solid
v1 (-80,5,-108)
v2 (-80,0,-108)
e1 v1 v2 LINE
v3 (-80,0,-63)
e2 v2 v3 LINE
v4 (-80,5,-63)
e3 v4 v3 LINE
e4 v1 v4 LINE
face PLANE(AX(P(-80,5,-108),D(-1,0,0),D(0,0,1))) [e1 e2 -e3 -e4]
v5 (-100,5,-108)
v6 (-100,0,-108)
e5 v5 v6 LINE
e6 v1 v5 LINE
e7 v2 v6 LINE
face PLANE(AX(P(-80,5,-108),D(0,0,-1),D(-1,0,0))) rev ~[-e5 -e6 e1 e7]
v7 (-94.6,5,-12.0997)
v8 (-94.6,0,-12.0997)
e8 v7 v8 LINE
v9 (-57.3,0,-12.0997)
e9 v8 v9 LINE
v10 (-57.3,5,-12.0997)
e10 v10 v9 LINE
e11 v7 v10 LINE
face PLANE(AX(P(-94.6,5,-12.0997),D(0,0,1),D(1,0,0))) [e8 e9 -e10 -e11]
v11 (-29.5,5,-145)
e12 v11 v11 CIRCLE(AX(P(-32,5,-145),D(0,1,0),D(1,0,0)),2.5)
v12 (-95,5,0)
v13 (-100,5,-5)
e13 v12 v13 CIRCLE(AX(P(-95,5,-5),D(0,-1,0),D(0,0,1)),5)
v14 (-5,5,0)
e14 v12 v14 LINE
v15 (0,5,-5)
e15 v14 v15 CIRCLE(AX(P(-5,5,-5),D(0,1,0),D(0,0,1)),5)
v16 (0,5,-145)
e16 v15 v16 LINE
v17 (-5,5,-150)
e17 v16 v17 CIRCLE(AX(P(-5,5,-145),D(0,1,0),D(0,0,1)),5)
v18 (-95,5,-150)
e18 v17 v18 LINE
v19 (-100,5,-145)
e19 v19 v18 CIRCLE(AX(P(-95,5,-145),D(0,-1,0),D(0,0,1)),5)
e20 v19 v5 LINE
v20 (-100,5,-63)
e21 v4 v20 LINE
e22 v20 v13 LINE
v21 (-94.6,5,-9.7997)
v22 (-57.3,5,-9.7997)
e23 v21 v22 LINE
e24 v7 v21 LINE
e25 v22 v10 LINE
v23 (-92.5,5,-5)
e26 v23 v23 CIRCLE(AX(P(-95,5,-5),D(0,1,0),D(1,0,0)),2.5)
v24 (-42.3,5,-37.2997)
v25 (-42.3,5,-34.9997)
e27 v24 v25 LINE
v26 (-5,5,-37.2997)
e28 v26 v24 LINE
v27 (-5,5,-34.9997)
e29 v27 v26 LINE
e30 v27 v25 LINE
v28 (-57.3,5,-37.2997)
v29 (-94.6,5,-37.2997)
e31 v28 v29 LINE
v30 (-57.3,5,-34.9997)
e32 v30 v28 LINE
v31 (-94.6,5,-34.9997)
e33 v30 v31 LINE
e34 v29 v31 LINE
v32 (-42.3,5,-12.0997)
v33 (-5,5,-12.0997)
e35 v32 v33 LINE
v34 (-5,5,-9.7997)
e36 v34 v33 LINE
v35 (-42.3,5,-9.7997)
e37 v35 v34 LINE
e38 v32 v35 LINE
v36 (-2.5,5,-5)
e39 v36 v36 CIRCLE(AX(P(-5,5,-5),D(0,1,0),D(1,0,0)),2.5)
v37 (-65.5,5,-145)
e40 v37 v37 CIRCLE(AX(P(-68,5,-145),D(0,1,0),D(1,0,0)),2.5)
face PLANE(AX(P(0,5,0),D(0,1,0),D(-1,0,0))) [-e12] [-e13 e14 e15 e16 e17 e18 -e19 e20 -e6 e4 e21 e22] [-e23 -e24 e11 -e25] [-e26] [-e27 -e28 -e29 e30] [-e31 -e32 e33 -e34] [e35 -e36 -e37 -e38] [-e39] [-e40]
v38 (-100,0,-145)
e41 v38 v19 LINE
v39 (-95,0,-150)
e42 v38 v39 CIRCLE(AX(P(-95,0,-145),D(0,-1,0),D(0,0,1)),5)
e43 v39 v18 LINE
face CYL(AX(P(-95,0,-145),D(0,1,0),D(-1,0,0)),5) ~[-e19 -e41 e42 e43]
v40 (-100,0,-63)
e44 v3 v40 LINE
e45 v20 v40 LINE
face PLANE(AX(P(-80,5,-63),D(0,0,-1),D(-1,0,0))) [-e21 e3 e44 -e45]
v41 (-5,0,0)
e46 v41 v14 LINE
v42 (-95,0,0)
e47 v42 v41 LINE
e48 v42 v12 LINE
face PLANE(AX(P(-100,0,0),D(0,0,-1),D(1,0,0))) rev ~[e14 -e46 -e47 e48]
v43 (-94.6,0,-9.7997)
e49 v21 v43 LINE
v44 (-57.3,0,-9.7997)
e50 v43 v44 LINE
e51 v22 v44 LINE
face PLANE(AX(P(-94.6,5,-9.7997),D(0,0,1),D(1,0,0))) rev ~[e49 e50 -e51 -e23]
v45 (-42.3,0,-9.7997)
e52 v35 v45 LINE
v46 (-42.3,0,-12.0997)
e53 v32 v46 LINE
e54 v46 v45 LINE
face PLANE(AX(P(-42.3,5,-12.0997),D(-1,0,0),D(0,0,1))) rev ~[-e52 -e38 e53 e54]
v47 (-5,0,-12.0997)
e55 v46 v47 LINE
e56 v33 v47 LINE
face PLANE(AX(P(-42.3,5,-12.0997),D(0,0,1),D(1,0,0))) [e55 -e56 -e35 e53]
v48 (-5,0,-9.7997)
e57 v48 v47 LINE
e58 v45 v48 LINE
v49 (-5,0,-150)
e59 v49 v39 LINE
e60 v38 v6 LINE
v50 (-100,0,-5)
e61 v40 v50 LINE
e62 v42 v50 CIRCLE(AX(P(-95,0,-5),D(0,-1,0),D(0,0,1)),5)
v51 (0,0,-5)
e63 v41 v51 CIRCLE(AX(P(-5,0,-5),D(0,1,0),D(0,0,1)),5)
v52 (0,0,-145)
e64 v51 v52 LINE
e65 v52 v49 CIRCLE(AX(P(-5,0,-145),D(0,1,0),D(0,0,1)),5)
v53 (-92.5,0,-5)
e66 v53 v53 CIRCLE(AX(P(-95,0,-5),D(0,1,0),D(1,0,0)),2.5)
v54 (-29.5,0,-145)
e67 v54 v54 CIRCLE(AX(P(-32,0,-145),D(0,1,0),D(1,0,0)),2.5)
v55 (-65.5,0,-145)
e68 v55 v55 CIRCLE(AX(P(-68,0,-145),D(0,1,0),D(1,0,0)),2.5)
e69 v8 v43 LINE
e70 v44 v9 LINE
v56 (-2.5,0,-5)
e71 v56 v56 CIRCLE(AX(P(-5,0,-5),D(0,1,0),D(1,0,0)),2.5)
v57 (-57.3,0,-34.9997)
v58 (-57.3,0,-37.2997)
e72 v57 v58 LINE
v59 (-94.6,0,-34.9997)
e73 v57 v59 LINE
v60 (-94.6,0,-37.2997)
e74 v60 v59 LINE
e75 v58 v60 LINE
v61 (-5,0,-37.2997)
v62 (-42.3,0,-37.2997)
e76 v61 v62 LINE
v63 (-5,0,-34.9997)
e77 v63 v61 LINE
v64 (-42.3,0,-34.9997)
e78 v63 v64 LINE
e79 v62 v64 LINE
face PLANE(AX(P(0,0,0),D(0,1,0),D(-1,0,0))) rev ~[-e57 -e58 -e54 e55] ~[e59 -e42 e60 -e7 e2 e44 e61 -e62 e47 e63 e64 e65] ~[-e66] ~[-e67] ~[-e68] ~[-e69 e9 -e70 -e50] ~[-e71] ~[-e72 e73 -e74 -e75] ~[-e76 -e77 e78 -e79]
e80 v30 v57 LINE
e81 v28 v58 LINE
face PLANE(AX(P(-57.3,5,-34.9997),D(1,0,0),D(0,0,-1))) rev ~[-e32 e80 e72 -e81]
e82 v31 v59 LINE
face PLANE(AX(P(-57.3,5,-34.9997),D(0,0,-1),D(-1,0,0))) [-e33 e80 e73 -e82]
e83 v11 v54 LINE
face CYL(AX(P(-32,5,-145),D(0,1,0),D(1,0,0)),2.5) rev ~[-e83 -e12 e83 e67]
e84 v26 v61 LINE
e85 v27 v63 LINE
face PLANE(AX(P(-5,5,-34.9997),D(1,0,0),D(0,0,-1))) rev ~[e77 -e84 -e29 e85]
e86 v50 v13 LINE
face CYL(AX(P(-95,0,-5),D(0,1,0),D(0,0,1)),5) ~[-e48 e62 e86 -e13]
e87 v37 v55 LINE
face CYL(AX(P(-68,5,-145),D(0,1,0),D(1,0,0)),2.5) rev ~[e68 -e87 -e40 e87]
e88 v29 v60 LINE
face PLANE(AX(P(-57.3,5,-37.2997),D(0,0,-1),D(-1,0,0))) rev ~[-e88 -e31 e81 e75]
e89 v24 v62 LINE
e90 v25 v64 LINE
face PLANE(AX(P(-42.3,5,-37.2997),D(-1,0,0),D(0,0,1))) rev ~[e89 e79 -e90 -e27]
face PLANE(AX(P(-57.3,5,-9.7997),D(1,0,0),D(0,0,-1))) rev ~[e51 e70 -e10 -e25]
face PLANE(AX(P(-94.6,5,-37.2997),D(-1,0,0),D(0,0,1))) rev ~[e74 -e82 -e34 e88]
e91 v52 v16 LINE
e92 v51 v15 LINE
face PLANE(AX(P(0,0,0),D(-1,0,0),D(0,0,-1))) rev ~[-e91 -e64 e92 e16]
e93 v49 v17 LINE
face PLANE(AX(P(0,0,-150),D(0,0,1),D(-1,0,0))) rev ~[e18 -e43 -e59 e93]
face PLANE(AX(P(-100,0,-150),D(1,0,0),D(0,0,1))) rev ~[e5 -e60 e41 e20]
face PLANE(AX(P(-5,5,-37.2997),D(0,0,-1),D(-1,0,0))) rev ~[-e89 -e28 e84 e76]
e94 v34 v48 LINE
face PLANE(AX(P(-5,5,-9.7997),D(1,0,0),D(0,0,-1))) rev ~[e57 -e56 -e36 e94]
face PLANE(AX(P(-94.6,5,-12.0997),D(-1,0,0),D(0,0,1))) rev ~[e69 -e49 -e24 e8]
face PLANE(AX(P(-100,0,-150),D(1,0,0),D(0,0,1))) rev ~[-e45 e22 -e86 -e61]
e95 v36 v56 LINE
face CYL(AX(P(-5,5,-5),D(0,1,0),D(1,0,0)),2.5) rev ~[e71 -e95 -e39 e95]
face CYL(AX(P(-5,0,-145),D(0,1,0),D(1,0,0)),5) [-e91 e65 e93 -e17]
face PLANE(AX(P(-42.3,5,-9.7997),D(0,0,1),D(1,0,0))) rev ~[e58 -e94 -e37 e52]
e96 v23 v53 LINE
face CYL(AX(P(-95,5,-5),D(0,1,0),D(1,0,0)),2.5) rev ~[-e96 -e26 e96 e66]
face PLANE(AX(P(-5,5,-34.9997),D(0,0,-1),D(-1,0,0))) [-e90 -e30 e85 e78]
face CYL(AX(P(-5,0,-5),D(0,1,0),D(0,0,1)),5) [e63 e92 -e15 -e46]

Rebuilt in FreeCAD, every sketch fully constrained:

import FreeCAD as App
import Part
import Sketcher
from FreeCAD import Vector


def edges_at(feature, points):
    """Names of the edges that pass closest to the given points."""
    edges = feature.Shape.Edges
    near = lambda p: min(range(len(edges)), key=lambda i: edges[i].distToShape(Part.Vertex(*p))[0])
    return sorted({f"Edge{near(p) + 1}" for p in points})

doc = App.newDocument("Part")
body = doc.addObject("PartDesign::Body", "Body")

# Sketch on XZ plane
sketch1 = doc.addObject("Sketcher::SketchObject", "Sketch")
body.addObject(sketch1)
sketch1.AttachmentSupport = (doc.XZ_Plane, [""])
sketch1.MapMode = "FlatFace"
sketch1.addGeometry(Part.LineSegment(Vector(-100, 0, 0), Vector(0, 0, 0)), False)
sketch1.addGeometry(Part.LineSegment(Vector(0, 0, 0), Vector(0, -150, 0)), False)
sketch1.addGeometry(Part.LineSegment(Vector(0, -150, 0), Vector(-100, -150, 0)), False)
sketch1.addGeometry(Part.LineSegment(Vector(-100, -150, 0), Vector(-100, 0, 0)), False)
sketch1.addConstraint(Sketcher.Constraint("Coincident", 0, 2, 1, 1))
sketch1.addConstraint(Sketcher.Constraint("Coincident", 1, 2, 2, 1))
sketch1.addConstraint(Sketcher.Constraint("Coincident", 2, 2, 3, 1))
sketch1.addConstraint(Sketcher.Constraint("Coincident", 3, 2, 0, 1))
sketch1.addConstraint(Sketcher.Constraint("Horizontal", 0))
sketch1.addConstraint(Sketcher.Constraint("Vertical", 1))
sketch1.addConstraint(Sketcher.Constraint("Horizontal", 2))
sketch1.addConstraint(Sketcher.Constraint("Vertical", 3))
sketch1.addConstraint(Sketcher.Constraint("Coincident", 0, 2, -1, 1))
sketch1.addConstraint(Sketcher.Constraint("DistanceX", 0, 1, 0, 2, 100.0))
sketch1.addConstraint(Sketcher.Constraint("DistanceY", 1, 2, 1, 1, 150.0))
pad1 = doc.addObject("PartDesign::Pad", "Pad")
body.addObject(pad1)
pad1.Profile = sketch1
pad1.Length = 5
pad1.Reversed = True
doc.recompute()

fillet = doc.addObject("PartDesign::Fillet", "Fillet")
body.addObject(fillet)
fillet.Base = (pad1, edges_at(pad1, [(0, 2.5, 0)]))
fillet.Radius = 5
doc.recompute()

fillet2 = doc.addObject("PartDesign::Fillet", "Fillet001")
body.addObject(fillet2)
fillet2.Base = (fillet, edges_at(fillet, [(-100, 2.5, 0)]))
fillet2.Radius = 5
doc.recompute()

fillet3 = doc.addObject("PartDesign::Fillet", "Fillet002")
body.addObject(fillet3)
fillet3.Base = (fillet2, edges_at(fillet2, [(-100, 2.5, -150), (0, 2.5, -150)]))
fillet3.Radius = 5

# Sketch on XZ plane
sketch2 = doc.addObject("Sketcher::SketchObject", "Sketch001")
body.addObject(sketch2)
sketch2.AttachmentSupport = (doc.XZ_Plane, [""])
sketch2.MapMode = "FlatFace"
sketch2.AttachmentOffset = App.Placement(Vector(0, 0, -5), App.Rotation())
sketch2.addGeometry(Part.LineSegment(Vector(-80, -63, 0), Vector(-80, -108, 0)), False)
sketch2.addGeometry(Part.LineSegment(Vector(-80, -108, 0), Vector(-100, -108, 0)), False)
sketch2.addGeometry(Part.LineSegment(Vector(-100, -108, 0), Vector(-100, -63, 0)), False)
sketch2.addGeometry(Part.LineSegment(Vector(-100, -63, 0), Vector(-80, -63, 0)), False)
sketch2.addConstraint(Sketcher.Constraint("Coincident", 0, 2, 1, 1))
sketch2.addConstraint(Sketcher.Constraint("Coincident", 1, 2, 2, 1))
sketch2.addConstraint(Sketcher.Constraint("Coincident", 2, 2, 3, 1))
sketch2.addConstraint(Sketcher.Constraint("Coincident", 3, 2, 0, 1))
sketch2.addConstraint(Sketcher.Constraint("Vertical", 0))
sketch2.addConstraint(Sketcher.Constraint("Horizontal", 1))
sketch2.addConstraint(Sketcher.Constraint("Vertical", 2))
sketch2.addConstraint(Sketcher.Constraint("Horizontal", 3))
sketch2.addConstraint(Sketcher.Constraint("DistanceY", 0, 2, 0, 1, 45.0))
sketch2.addConstraint(Sketcher.Constraint("DistanceX", 1, 2, 1, 1, 20.0))
sketch2.addConstraint(Sketcher.Constraint("DistanceX", 0, 2, -1, 1, 80.0))
sketch2.addConstraint(Sketcher.Constraint("DistanceY", 0, 2, -1, 1, 108.0))
pocket1 = doc.addObject("PartDesign::Pocket", "Pocket")
body.addObject(pocket1)
pocket1.Profile = sketch2
pocket1.Type = "ThroughAll"
pocket1.Reversed = True

# Sketch on XZ plane
sketch3 = doc.addObject("Sketcher::SketchObject", "Sketch002")
body.addObject(sketch3)
sketch3.AttachmentSupport = (doc.XZ_Plane, [""])
sketch3.MapMode = "FlatFace"
sketch3.AttachmentOffset = App.Placement(Vector(0, 0, -5), App.Rotation())
sketch3.addGeometry(Part.Circle(Vector(-5, -5, 0), Vector(0, 0, 1), 2.5), False)
sketch3.addGeometry(Part.Circle(Vector(-95, -5, 0), Vector(0, 0, 1), 2.5), False)
sketch3.addGeometry(Part.Circle(Vector(-68, -145, 0), Vector(0, 0, 1), 2.5), False)
sketch3.addGeometry(Part.Circle(Vector(-32, -145, 0), Vector(0, 0, 1), 2.5), False)
sketch3.addConstraint(Sketcher.Constraint("Equal", 0, 1))
sketch3.addConstraint(Sketcher.Constraint("Equal", 1, 2))
sketch3.addConstraint(Sketcher.Constraint("Equal", 2, 3))
sketch3.addConstraint(Sketcher.Constraint("Horizontal", 0, 3, 1, 3))
sketch3.addConstraint(Sketcher.Constraint("Horizontal", 2, 3, 3, 3))
sketch3.addConstraint(Sketcher.Constraint("Diameter", 0, 5.0))
sketch3.addConstraint(Sketcher.Constraint("DistanceX", 0, 3, -1, 1, 5.0))
sketch3.addConstraint(Sketcher.Constraint("DistanceY", 0, 3, -1, 1, 5.0))
sketch3.addConstraint(Sketcher.Constraint("DistanceX", 1, 3, -1, 1, 95.0))
sketch3.addConstraint(Sketcher.Constraint("DistanceX", 2, 3, -1, 1, 68.0))
sketch3.addConstraint(Sketcher.Constraint("DistanceY", 2, 3, -1, 1, 145.0))
sketch3.addConstraint(Sketcher.Constraint("DistanceX", 3, 3, -1, 1, 32.0))
pocket2 = doc.addObject("PartDesign::Pocket", "Pocket001")
body.addObject(pocket2)
pocket2.Profile = sketch3
pocket2.Type = "ThroughAll"
pocket2.Reversed = True

# Sketch on XZ plane
sketch4 = doc.addObject("Sketcher::SketchObject", "Sketch003")
body.addObject(sketch4)
sketch4.AttachmentSupport = (doc.XZ_Plane, [""])
sketch4.MapMode = "FlatFace"
sketch4.AttachmentOffset = App.Placement(Vector(0, 0, -5), App.Rotation())
sketch4.addGeometry(Part.LineSegment(Vector(-42.3, -35, 0), Vector(-5, -35, 0)), False)
sketch4.addGeometry(Part.LineSegment(Vector(-5, -35, 0), Vector(-5, -37.3, 0)), False)
sketch4.addGeometry(Part.LineSegment(Vector(-5, -37.3, 0), Vector(-42.3, -37.3, 0)), False)
sketch4.addGeometry(Part.LineSegment(Vector(-42.3, -37.3, 0), Vector(-42.3, -35, 0)), False)
sketch4.addGeometry(Part.LineSegment(Vector(-5, -12.1, 0), Vector(-42.3, -12.1, 0)), False)
sketch4.addGeometry(Part.LineSegment(Vector(-42.3, -12.1, 0), Vector(-42.3, -9.8, 0)), False)
sketch4.addGeometry(Part.LineSegment(Vector(-42.3, -9.8, 0), Vector(-5, -9.8, 0)), False)
sketch4.addGeometry(Part.LineSegment(Vector(-5, -9.8, 0), Vector(-5, -12.1, 0)), False)
sketch4.addGeometry(Part.LineSegment(Vector(-94.6, -35, 0), Vector(-57.3, -35, 0)), False)
sketch4.addGeometry(Part.LineSegment(Vector(-57.3, -35, 0), Vector(-57.3, -37.3, 0)), False)
sketch4.addGeometry(Part.LineSegment(Vector(-57.3, -37.3, 0), Vector(-94.6, -37.3, 0)), False)
sketch4.addGeometry(Part.LineSegment(Vector(-94.6, -37.3, 0), Vector(-94.6, -35, 0)), False)
sketch4.addGeometry(Part.LineSegment(Vector(-57.3, -12.1, 0), Vector(-94.6, -12.1, 0)), False)
sketch4.addGeometry(Part.LineSegment(Vector(-94.6, -12.1, 0), Vector(-94.6, -9.8, 0)), False)
sketch4.addGeometry(Part.LineSegment(Vector(-94.6, -9.8, 0), Vector(-57.3, -9.8, 0)), False)
sketch4.addGeometry(Part.LineSegment(Vector(-57.3, -9.8, 0), Vector(-57.3, -12.1, 0)), False)
sketch4.addConstraint(Sketcher.Constraint("Coincident", 0, 2, 1, 1))
sketch4.addConstraint(Sketcher.Constraint("Coincident", 1, 2, 2, 1))
sketch4.addConstraint(Sketcher.Constraint("Coincident", 2, 2, 3, 1))
sketch4.addConstraint(Sketcher.Constraint("Coincident", 3, 2, 0, 1))
sketch4.addConstraint(Sketcher.Constraint("Coincident", 4, 2, 5, 1))
sketch4.addConstraint(Sketcher.Constraint("Coincident", 5, 2, 6, 1))
sketch4.addConstraint(Sketcher.Constraint("Coincident", 6, 2, 7, 1))
sketch4.addConstraint(Sketcher.Constraint("Coincident", 7, 2, 4, 1))
sketch4.addConstraint(Sketcher.Constraint("Coincident", 8, 2, 9, 1))
sketch4.addConstraint(Sketcher.Constraint("Coincident", 9, 2, 10, 1))
sketch4.addConstraint(Sketcher.Constraint("Coincident", 10, 2, 11, 1))
sketch4.addConstraint(Sketcher.Constraint("Coincident", 11, 2, 8, 1))
sketch4.addConstraint(Sketcher.Constraint("Coincident", 12, 2, 13, 1))
sketch4.addConstraint(Sketcher.Constraint("Coincident", 13, 2, 14, 1))
sketch4.addConstraint(Sketcher.Constraint("Coincident", 14, 2, 15, 1))
sketch4.addConstraint(Sketcher.Constraint("Coincident", 15, 2, 12, 1))
sketch4.addConstraint(Sketcher.Constraint("Horizontal", 0))
sketch4.addConstraint(Sketcher.Constraint("Vertical", 1))
sketch4.addConstraint(Sketcher.Constraint("Horizontal", 2))
sketch4.addConstraint(Sketcher.Constraint("Vertical", 3))
sketch4.addConstraint(Sketcher.Constraint("Horizontal", 4))
sketch4.addConstraint(Sketcher.Constraint("Vertical", 5))
sketch4.addConstraint(Sketcher.Constraint("Horizontal", 6))
sketch4.addConstraint(Sketcher.Constraint("Vertical", 7))
sketch4.addConstraint(Sketcher.Constraint("Horizontal", 8))
sketch4.addConstraint(Sketcher.Constraint("Vertical", 9))
sketch4.addConstraint(Sketcher.Constraint("Horizontal", 10))
sketch4.addConstraint(Sketcher.Constraint("Vertical", 11))
sketch4.addConstraint(Sketcher.Constraint("Horizontal", 12))
sketch4.addConstraint(Sketcher.Constraint("Vertical", 13))
sketch4.addConstraint(Sketcher.Constraint("Horizontal", 14))
sketch4.addConstraint(Sketcher.Constraint("Vertical", 15))
sketch4.addConstraint(Sketcher.Constraint("Horizontal", 3, 2, 8, 2))
sketch4.addConstraint(Sketcher.Constraint("Horizontal", 2, 2, 9, 2))
sketch4.addConstraint(Sketcher.Constraint("Horizontal", 7, 2, 12, 2))
sketch4.addConstraint(Sketcher.Constraint("Horizontal", 6, 2, 13, 2))
sketch4.addConstraint(Sketcher.Constraint("Vertical", 3, 2, 4, 2))
sketch4.addConstraint(Sketcher.Constraint("Vertical", 1, 2, 6, 2))
sketch4.addConstraint(Sketcher.Constraint("Vertical", 11, 2, 12, 2))
sketch4.addConstraint(Sketcher.Constraint("Vertical", 9, 2, 14, 2))
sketch4.addConstraint(Sketcher.Constraint("Equal", 6, 8))
sketch4.addConstraint(Sketcher.Constraint("Equal", 3, 5))
sketch4.addConstraint(Sketcher.Constraint("DistanceX", 0, 1, 0, 2, 37.3))
sketch4.addConstraint(Sketcher.Constraint("DistanceY", 1, 2, 1, 1, 2.3))
sketch4.addConstraint(Sketcher.Constraint("DistanceY", 3, 2, 4, 2, 22.9))
sketch4.addConstraint(Sketcher.Constraint("DistanceX", 0, 2, -1, 1, 5.0))
sketch4.addConstraint(Sketcher.Constraint("DistanceX", 8, 2, 3, 2, 15.0))
sketch4.addConstraint(Sketcher.Constraint("DistanceY", 1, 2, -1, 1, 37.2997))
pocket3 = doc.addObject("PartDesign::Pocket", "Pocket002")
body.addObject(pocket3)
pocket3.Profile = sketch4
pocket3.Type = "ThroughAll"
pocket3.Reversed = True

doc.recompute()
